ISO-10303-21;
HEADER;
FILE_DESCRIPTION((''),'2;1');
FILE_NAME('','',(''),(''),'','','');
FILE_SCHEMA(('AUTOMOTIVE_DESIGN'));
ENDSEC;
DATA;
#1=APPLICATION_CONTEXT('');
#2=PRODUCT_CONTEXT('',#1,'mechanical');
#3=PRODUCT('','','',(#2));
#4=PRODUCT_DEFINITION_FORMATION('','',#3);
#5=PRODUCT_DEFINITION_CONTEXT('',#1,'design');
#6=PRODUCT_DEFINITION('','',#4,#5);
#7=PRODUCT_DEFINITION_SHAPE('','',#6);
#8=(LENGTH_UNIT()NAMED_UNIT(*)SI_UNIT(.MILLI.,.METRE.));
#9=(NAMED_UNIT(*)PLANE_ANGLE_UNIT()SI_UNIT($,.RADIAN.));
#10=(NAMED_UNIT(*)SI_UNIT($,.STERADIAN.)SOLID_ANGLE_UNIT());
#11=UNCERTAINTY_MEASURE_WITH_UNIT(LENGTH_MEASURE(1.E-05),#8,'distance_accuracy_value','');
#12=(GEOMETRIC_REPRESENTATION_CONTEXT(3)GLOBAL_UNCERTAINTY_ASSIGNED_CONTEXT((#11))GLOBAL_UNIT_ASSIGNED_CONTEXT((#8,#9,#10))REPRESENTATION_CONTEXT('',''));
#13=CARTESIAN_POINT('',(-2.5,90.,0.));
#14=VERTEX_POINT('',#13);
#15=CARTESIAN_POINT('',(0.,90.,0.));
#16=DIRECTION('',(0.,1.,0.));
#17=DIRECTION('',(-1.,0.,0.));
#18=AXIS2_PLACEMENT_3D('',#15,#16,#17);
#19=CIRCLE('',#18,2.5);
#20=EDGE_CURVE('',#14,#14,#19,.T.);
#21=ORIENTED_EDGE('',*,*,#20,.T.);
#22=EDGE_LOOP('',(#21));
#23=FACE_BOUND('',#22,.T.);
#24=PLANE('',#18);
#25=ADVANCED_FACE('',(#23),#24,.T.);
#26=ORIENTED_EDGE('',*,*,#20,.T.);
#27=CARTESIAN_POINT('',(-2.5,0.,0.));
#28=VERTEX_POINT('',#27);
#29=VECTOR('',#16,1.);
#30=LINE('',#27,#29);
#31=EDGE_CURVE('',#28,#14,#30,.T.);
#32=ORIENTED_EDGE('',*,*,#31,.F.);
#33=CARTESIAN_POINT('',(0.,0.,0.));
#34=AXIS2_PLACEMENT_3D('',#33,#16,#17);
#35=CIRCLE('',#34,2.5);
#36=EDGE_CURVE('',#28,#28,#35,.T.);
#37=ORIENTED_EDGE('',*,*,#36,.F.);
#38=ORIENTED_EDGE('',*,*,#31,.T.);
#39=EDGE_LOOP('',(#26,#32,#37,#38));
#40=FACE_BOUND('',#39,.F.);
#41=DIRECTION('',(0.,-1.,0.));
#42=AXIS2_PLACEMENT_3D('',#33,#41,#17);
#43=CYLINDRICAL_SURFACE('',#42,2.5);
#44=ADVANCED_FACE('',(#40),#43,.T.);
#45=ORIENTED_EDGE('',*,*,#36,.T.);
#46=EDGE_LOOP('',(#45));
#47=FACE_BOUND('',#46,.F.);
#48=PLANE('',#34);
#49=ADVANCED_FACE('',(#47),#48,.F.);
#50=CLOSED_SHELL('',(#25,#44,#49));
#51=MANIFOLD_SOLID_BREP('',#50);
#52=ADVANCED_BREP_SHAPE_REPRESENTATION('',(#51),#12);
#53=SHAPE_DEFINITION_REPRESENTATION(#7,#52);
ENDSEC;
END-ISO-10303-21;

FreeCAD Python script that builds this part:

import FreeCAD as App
import Part
import Sketcher

V = App.Vector

doc = App.newDocument("Part")
body = doc.addObject("PartDesign::Body", "Body")

# Sketch on XZ plane
sketch1 = body.newObject("Sketcher::SketchObject", "Sketch")
sketch1.AttachmentSupport = (doc.getObject("XZ_Plane"), [""])
sketch1.MapMode = "FlatFace"
sketch1.addGeometry(Part.Circle(V(0, 0, 0), V(0, 0, 1), 2.5), False)
sketch1.addConstraint([
    Sketcher.Constraint("Coincident", 0, 3, -1, 1),
    Sketcher.Constraint("Diameter", 0, 5.0),
])
pad1 = body.newObject("PartDesign::Pad", "Pad")
pad1.Profile = sketch1
pad1.Length = 90
pad1.Reversed = True

doc.recompute()
